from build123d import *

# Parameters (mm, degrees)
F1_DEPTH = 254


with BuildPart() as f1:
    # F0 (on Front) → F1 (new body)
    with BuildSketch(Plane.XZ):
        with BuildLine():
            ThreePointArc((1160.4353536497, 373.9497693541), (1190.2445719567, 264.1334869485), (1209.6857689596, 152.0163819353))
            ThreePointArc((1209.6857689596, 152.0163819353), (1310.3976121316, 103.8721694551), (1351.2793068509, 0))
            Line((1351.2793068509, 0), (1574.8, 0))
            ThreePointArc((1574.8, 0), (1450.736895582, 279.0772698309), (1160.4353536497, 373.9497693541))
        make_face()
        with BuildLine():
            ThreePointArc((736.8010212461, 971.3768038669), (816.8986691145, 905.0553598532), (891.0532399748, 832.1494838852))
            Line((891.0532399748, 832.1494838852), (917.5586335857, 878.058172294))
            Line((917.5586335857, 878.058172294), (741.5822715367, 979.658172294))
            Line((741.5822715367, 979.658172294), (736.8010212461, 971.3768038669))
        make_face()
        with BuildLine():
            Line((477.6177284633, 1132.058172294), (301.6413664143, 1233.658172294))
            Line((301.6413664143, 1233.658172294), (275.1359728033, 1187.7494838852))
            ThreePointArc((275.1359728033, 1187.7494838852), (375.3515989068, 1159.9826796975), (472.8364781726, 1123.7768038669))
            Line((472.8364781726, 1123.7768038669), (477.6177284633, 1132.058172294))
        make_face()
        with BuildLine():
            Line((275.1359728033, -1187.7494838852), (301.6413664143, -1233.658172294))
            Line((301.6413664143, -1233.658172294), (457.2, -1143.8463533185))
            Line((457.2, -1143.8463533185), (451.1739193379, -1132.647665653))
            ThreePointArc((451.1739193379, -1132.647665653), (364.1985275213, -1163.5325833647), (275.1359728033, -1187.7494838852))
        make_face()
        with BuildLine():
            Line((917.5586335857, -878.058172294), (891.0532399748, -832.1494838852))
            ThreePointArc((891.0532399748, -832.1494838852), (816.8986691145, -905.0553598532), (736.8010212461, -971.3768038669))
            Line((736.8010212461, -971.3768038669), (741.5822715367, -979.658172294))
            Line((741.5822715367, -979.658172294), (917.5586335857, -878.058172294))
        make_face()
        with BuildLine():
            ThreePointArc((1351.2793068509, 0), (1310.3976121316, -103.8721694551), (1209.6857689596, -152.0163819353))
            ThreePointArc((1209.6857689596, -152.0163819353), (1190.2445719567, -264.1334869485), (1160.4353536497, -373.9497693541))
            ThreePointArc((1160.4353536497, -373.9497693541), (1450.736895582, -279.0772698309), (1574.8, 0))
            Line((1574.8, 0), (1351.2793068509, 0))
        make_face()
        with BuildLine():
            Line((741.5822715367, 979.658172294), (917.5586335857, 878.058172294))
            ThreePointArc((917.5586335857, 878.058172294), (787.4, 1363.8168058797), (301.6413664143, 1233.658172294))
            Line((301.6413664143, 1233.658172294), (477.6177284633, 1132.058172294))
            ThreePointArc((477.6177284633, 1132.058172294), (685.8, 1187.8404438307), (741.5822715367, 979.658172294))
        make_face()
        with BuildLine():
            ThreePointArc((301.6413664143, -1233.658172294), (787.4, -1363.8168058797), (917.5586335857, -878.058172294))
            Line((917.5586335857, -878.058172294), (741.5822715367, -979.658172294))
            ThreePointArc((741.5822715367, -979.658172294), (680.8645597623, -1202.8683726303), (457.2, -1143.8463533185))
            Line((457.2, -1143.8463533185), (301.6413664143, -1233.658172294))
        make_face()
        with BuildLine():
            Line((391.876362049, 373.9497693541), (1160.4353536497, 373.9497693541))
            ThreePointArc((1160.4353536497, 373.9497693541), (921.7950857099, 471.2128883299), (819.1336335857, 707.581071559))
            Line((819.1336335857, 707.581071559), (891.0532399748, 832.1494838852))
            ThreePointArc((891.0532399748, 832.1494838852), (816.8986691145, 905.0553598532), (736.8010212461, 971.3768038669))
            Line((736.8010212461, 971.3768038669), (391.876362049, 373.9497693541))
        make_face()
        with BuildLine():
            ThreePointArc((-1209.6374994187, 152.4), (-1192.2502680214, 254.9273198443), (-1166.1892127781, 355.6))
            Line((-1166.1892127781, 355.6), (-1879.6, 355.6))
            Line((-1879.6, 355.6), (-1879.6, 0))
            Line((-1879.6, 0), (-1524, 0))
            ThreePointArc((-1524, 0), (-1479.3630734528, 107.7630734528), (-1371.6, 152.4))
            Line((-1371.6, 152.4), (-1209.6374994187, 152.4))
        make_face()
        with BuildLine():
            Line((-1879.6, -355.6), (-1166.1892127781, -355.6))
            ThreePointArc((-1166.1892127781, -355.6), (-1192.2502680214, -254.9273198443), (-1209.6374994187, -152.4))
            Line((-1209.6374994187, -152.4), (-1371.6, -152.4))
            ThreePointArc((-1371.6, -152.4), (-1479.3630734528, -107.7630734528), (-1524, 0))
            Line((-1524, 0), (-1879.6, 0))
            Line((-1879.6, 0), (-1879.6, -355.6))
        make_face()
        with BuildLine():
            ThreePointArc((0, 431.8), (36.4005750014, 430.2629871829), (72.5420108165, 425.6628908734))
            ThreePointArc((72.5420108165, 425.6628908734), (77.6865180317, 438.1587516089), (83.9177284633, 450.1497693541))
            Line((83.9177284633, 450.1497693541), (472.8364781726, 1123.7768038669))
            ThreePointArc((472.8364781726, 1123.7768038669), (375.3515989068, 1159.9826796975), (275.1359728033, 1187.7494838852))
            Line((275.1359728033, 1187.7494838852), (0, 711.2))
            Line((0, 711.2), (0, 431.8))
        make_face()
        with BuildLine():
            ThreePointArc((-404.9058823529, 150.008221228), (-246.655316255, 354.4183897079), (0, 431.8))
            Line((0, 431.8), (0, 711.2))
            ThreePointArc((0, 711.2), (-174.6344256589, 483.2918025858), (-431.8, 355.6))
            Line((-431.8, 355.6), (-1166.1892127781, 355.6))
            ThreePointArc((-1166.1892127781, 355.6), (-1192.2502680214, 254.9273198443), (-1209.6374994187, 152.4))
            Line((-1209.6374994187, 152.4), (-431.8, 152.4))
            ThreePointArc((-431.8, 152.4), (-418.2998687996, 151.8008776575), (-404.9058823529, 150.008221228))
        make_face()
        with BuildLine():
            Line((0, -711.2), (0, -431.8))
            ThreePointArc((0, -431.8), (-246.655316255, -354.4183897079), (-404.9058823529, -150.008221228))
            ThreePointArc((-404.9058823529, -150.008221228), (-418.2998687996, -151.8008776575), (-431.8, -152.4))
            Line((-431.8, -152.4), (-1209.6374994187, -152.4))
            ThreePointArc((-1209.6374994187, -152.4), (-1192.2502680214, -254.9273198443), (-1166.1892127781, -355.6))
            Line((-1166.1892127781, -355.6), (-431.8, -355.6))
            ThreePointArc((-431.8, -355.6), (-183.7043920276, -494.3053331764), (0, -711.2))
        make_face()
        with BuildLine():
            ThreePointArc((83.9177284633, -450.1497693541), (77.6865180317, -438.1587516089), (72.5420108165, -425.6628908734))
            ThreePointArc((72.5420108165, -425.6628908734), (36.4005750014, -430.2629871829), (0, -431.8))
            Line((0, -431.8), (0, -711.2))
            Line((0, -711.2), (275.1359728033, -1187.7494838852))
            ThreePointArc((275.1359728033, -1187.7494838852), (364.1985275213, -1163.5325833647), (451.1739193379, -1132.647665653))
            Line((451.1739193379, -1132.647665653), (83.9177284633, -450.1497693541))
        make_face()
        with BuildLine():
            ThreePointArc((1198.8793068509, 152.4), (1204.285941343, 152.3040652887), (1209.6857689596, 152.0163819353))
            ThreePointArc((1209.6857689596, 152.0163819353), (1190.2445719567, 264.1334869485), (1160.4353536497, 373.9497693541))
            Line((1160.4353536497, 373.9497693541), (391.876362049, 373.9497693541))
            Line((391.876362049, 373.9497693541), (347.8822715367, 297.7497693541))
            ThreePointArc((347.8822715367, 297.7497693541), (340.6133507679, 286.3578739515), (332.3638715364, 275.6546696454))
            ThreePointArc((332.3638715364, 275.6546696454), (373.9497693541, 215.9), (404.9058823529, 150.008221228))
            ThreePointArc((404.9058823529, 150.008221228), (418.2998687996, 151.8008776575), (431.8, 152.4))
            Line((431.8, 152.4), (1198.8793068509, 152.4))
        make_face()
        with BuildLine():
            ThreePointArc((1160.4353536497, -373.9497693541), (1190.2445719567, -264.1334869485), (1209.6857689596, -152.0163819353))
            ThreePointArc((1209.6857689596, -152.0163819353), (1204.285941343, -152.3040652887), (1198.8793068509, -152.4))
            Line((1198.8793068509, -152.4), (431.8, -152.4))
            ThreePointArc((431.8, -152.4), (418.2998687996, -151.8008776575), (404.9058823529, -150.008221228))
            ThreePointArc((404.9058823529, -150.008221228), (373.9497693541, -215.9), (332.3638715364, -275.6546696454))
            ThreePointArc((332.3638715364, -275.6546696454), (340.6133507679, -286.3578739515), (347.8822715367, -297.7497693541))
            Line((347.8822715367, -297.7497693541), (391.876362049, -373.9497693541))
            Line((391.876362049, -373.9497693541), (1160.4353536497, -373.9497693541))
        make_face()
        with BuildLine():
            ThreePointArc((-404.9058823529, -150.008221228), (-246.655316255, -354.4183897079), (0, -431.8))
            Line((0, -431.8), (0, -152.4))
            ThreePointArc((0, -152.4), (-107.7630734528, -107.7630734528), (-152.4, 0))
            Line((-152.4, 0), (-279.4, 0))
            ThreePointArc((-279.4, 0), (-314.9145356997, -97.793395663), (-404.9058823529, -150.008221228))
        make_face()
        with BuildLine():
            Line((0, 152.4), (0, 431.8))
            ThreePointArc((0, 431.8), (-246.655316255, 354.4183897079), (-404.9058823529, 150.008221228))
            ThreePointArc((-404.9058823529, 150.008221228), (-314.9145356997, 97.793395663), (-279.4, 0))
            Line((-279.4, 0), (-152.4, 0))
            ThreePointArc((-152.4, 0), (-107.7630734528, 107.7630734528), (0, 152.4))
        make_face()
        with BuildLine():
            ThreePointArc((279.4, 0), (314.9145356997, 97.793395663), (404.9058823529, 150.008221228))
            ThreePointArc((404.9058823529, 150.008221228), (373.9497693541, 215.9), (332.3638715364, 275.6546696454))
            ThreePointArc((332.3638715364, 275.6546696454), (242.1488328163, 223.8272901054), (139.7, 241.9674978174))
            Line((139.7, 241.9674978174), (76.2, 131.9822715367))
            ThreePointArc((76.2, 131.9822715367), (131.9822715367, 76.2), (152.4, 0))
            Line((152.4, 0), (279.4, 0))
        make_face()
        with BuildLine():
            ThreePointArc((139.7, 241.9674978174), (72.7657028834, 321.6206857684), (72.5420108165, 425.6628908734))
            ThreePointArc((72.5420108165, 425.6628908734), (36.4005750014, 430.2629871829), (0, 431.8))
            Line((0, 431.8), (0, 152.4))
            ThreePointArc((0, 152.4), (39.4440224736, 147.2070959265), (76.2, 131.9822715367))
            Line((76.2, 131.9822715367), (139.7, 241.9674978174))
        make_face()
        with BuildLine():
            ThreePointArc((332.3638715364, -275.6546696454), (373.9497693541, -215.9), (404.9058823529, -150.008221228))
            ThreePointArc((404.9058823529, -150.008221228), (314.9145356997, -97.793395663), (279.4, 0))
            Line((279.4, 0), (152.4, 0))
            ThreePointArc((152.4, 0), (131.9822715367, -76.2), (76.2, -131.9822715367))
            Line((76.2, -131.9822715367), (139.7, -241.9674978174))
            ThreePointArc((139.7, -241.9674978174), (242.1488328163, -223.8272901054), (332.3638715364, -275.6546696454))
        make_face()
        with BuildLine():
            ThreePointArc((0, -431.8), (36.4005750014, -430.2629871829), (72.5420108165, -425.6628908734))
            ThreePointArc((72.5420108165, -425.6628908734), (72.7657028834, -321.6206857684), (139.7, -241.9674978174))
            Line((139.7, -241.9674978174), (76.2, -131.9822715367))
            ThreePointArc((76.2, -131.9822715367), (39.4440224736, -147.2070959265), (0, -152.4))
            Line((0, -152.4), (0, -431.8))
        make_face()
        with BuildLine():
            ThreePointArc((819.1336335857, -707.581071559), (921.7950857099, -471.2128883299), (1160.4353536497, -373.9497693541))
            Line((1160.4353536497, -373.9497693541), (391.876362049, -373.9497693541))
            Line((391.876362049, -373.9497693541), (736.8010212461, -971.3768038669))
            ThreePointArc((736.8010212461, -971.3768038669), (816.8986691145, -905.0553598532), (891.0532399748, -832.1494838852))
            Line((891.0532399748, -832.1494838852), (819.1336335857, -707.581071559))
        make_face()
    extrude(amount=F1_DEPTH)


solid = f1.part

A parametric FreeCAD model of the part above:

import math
import FreeCAD as App
import Part
import Sketcher

V = App.Vector
Q = App.Units.Quantity

doc = App.newDocument("Part")
body = doc.addObject("PartDesign::Body", "Body")

# Sketch on XZ plane
sketch1 = body.newObject("Sketcher::SketchObject", "Sketch")
sketch1.AttachmentSupport = (doc.getObject("XZ_Plane"), [""])
sketch1.MapMode = "FlatFace"
sketch1.addGeometry([
    Part.ArcOfCircle(Part.Circle(V(1198.879307, 0, 0), V(0, 0, 1), 375.920693), math.radians(-95.869679), math.radians(95.869679)),  # 0
    Part.ArcOfCircle(Part.Circle(V(1160.435354, 715.339664, 0), V(0, 0, 1), 341.389894), math.radians(-178.697756), math.radians(-90)),  # 1
    Part.LineSegment(V(819.133634, 707.581072, 0), V(891.05324, 832.149484, 0)),  # 2
    Part.LineSegment(V(891.05324, 832.149484, 0), V(917.558634, 878.058172, 0)),  # 3
    Part.ArcOfCircle(Part.Circle(V(609.6, 1055.858172, 0), V(0, 0, 1), 355.6), math.radians(-30), math.radians(150)),  # 4
    Part.LineSegment(V(301.641366, 1233.658172, 0), V(0, 711.2, 0)),  # 5
    Part.ArcOfCircle(Part.Circle(V(-578.308531, 973.467502, 0), V(0, 0, 1), 635), math.radians(-76.660412), math.radians(-24.394669)),  # 6
    Part.LineSegment(V(-431.8, 355.6, 0), V(-1879.6, 355.6, 0)),  # 7
    Part.LineSegment(V(-1879.6, 355.6, 0), V(-1879.6, -355.6, 0)),  # 8
    Part.LineSegment(V(-1879.6, -355.6, 0), V(-431.8, -355.6, 0)),  # 9
    Part.ArcOfCircle(Part.Circle(V(-690.751769, -1110.00572, 0), V(0, 0, 1), 797.61144), math.radians(30), math.radians(71.05508)),  # 10
    Part.LineSegment(V(0, -711.2, 0), V(301.641366, -1233.658172, 0)),  # 11
    Part.ArcOfCircle(Part.Circle(V(609.6, -1055.858172, 0), V(0, 0, 1), 355.6), math.radians(-150), math.radians(30)),  # 12
    Part.LineSegment(V(917.558634, -878.058172, 0), V(891.05324, -832.149484, 0)),  # 13
    Part.LineSegment(V(891.05324, -832.149484, 0), V(819.133634, -707.581072, 0)),  # 14
    Part.ArcOfCircle(Part.Circle(V(1160.435354, -715.339664, 0), V(0, 0, 1), 341.389894), math.radians(90), math.radians(178.697756)),  # 15
    Part.ArcOfCircle(Part.Circle(V(1198.879307, 0, 0), V(0, 0, 1), 152.4), math.radians(0), math.radians(85.933827)),  # 16
    Part.ArcOfCircle(Part.Circle(V(1198.879307, 0, 0), V(0, 0, 1), 152.4), math.radians(-85.933827), math.radians(0)),  # 17
    Part.ArcOfCircle(Part.Circle(V(1198.879307, 0, 0), V(0, 0, 1), 152.4), math.radians(-90), math.radians(-85.933827)),  # 18
    Part.LineSegment(V(1198.879307, -152.4, 0), V(431.8, -152.4, 0)),  # 19
    Part.ArcOfCircle(Part.Circle(V(431.8, 0, 0), V(0, 0, 1), 152.4), math.radians(-100.164249), math.radians(-90)),  # 20
    Part.ArcOfCircle(Part.Circle(V(431.8, 0, 0), V(0, 0, 1), 152.4), math.radians(100.164249), math.radians(259.835751)),  # 21
    Part.ArcOfCircle(Part.Circle(V(431.8, 0, 0), V(0, 0, 1), 152.4), math.radians(90), math.radians(100.164249)),  # 22
    Part.LineSegment(V(431.8, 152.4, 0), V(1198.879307, 152.4, 0)),  # 23
    Part.ArcOfCircle(Part.Circle(V(1198.879307, 0, 0), V(0, 0, 1), 152.4), math.radians(85.933827), math.radians(90)),  # 24
    Part.ArcOfCircle(Part.Circle(V(215.9, -373.949769, 0), V(0, 0, 1), 152.4), math.radians(30), math.radians(40.164249)),  # 25
    Part.LineSegment(V(347.882272, -297.749769, 0), V(736.801021, -971.376804, 0)),  # 26
    Part.LineSegment(V(736.801021, -971.376804, 0), V(741.582272, -979.658172, 0)),  # 27
    Part.ArcOfCircle(Part.Circle(V(598.768105, -1060.673142, 0), V(0, 0, 1), 164.192909), math.radians(-149.565178), math.radians(29.565178)),  # 28
    Part.LineSegment(V(457.2, -1143.846353, 0), V(451.173919, -1132.647666, 0)),  # 29
    Part.LineSegment(V(451.173919, -1132.647666, 0), V(83.917728, -450.149769, 0)),  # 30
    Part.ArcOfCircle(Part.Circle(V(215.9, -373.949769, 0), V(0, 0, 1), 152.4), math.radians(-160.164249), math.radians(-150)),  # 31
    Part.ArcOfCircle(Part.Circle(V(215.9, -373.949769, 0), V(0, 0, 1), 152.4), math.radians(40.164249), math.radians(199.835751)),  # 32
    Part.ArcOfCircle(Part.Circle(V(0, 0, 0), V(0, 0, 1), 152.4), math.radians(180), math.radians(270)),  # 33
    Part.ArcOfCircle(Part.Circle(V(0, 0, 0), V(0, 0, 1), 152.4), math.radians(90), math.radians(180)),  # 34
    Part.ArcOfCircle(Part.Circle(V(0, 0, 0), V(0, 0, 1), 152.4), math.radians(60), math.radians(90)),  # 35
    Part.ArcOfCircle(Part.Circle(V(0, 0, 0), V(0, 0, 1), 152.4), math.radians(0), math.radians(60)),  # 36
    Part.ArcOfCircle(Part.Circle(V(0, 0, 0), V(0, 0, 1), 152.4), math.radians(-60), math.radians(0)),  # 37
    Part.ArcOfCircle(Part.Circle(V(0, 0, 0), V(0, 0, 1), 152.4), math.radians(-90), math.radians(-60)),  # 38
    Part.LineSegment(V(83.917728, 450.149769, 0), V(472.836478, 1123.776804, 0)),  # 39
    Part.LineSegment(V(472.836478, 1123.776804, 0), V(477.617728, 1132.058172, 0)),  # 40
    Part.ArcOfCircle(Part.Circle(V(609.6, 1055.858172, 0), V(0, 0, 1), 152.4), math.radians(-30), math.radians(150)),  # 41
    Part.LineSegment(V(741.582272, 979.658172, 0), V(736.801021, 971.376804, 0)),  # 42
    Part.LineSegment(V(736.801021, 971.376804, 0), V(347.882272, 297.749769, 0)),  # 43
    Part.ArcOfCircle(Part.Circle(V(215.9, 373.949769, 0), V(0, 0, 1), 152.4), math.radians(-40.164249), math.radians(-30)),  # 44
    Part.ArcOfCircle(Part.Circle(V(215.9, 373.949769, 0), V(0, 0, 1), 152.4), math.radians(150), math.radians(319.835751)),  # 45
    Part.ArcOfCircle(Part.Circle(V(-431.8, 0, 0), V(0, 0, 1), 152.4), math.radians(-90), math.radians(-79.835751)),  # 46
    Part.LineSegment(V(-431.8, -152.4, 0), V(-1371.6, -152.4, 0)),  # 47
    Part.ArcOfCircle(Part.Circle(V(-1371.6, 0, 0), V(0, 0, 1), 152.4), math.radians(180), math.radians(270)),  # 48
    Part.ArcOfCircle(Part.Circle(V(-1371.6, 0, 0), V(0, 0, 1), 152.4), math.radians(90), math.radians(180)),  # 49
    Part.LineSegment(V(-1371.6, 152.4, 0), V(-431.8, 152.4, 0)),  # 50
    Part.ArcOfCircle(Part.Circle(V(-431.8, 0, 0), V(0, 0, 1), 152.4), math.radians(79.835751), math.radians(90)),  # 51
    Part.ArcOfCircle(Part.Circle(V(-431.8, 0, 0), V(0, 0, 1), 152.4), math.radians(-79.835751), math.radians(79.835751)),  # 52
], False)
sketch1.addConstraint([
    Sketcher.Constraint("Coincident", 0, 2, 1, 2),
    Sketcher.Constraint("Coincident", 1, 1, 2, 1),
    Sketcher.Constraint("Coincident", 2, 2, 3, 1),
    Sketcher.Constraint("Coincident", 3, 2, 4, 1),
    Sketcher.Constraint("Coincident", 4, 2, 5, 1),
    Sketcher.Constraint("Coincident", 5, 2, 6, 2),
    Sketcher.Constraint("Coincident", 6, 1, 7, 1),
    Sketcher.Constraint("Coincident", 7, 2, 8, 1),
    Sketcher.Constraint("Coincident", 8, 2, 9, 1),
    Sketcher.Constraint("Coincident", 9, 2, 10, 2),
    Sketcher.Constraint("Coincident", 10, 1, 11, 1),
    Sketcher.Constraint("Coincident", 11, 2, 12, 1),
    Sketcher.Constraint("Coincident", 12, 2, 13, 1),
    Sketcher.Constraint("Coincident", 13, 2, 14, 1),
    Sketcher.Constraint("Coincident", 14, 2, 15, 2),
    Sketcher.Constraint("Coincident", 15, 1, 0, 1),
    Sketcher.Constraint("Coincident", 16, 1, 17, 2),
    Sketcher.Constraint("Coincident", 17, 1, 18, 2),
    Sketcher.Constraint("Coincident", 18, 1, 19, 1),
    Sketcher.Constraint("Coincident", 19, 2, 20, 2),
    Sketcher.Constraint("Coincident", 20, 1, 21, 2),
    Sketcher.Constraint("Coincident", 21, 1, 22, 2),
    Sketcher.Constraint("Coincident", 22, 1, 23, 1),
    Sketcher.Constraint("Coincident", 23, 2, 24, 2),
    Sketcher.Constraint("Coincident", 24, 1, 16, 2),
    Sketcher.Constraint("Coincident", 25, 1, 26, 1),
    Sketcher.Constraint("Coincident", 26, 2, 27, 1),
    Sketcher.Constraint("Coincident", 27, 2, 28, 2),
    Sketcher.Constraint("Coincident", 28, 1, 29, 1),
    Sketcher.Constraint("Coincident", 29, 2, 30, 1),
    Sketcher.Constraint("Coincident", 30, 2, 31, 2),
    Sketcher.Constraint("Coincident", 31, 1, 32, 2),
    Sketcher.Constraint("Coincident", 32, 1, 25, 2),
    Sketcher.Constraint("Coincident", 33, 1, 34, 2),
    Sketcher.Constraint("Coincident", 34, 1, 35, 2),
    Sketcher.Constraint("Coincident", 35, 1, 36, 2),
    Sketcher.Constraint("Coincident", 36, 1, 37, 2),
    Sketcher.Constraint("Coincident", 37, 1, 38, 2),
    Sketcher.Constraint("Coincident", 38, 1, 33, 2),
    Sketcher.Constraint("Coincident", 39, 2, 40, 1),
    Sketcher.Constraint("Coincident", 40, 2, 41, 2),
    Sketcher.Constraint("Coincident", 41, 1, 42, 1),
    Sketcher.Constraint("Coincident", 42, 2, 43, 1),
    Sketcher.Constraint("Coincident", 43, 2, 44, 2),
    Sketcher.Constraint("Coincident", 44, 1, 45, 2),
    Sketcher.Constraint("Coincident", 45, 1, 39, 1),
    Sketcher.Constraint("Coincident", 46, 1, 47, 1),
    Sketcher.Constraint("Coincident", 47, 2, 48, 2),
    Sketcher.Constraint("Coincident", 48, 1, 49, 2),
    Sketcher.Constraint("Coincident", 49, 1, 50, 1),
    Sketcher.Constraint("Coincident", 50, 2, 51, 2),
    Sketcher.Constraint("Coincident", 51, 1, 52, 2),
    Sketcher.Constraint("Coincident", 52, 1, 46, 2),
    Sketcher.Constraint("Horizontal", 7),
    Sketcher.Constraint("Vertical", 8),
    Sketcher.Constraint("Horizontal", 9),
    Sketcher.Constraint("Horizontal", 19),
    Sketcher.Constraint("Horizontal", 23),
    Sketcher.Constraint("Horizontal", 47),
    Sketcher.Constraint("Horizontal", 50),
    Sketcher.Constraint("Coincident", 33, 3, -1, 1),
    Sketcher.Constraint("Coincident", 34, 3, -1, 1),
    Sketcher.Constraint("Coincident", 35, 3, -1, 1),
    Sketcher.Constraint("Coincident", 36, 3, -1, 1),
    Sketcher.Constraint("Coincident", 37, 3, -1, 1),
    Sketcher.Constraint("Coincident", 16, 3, 0, 3),
    Sketcher.Constraint("Coincident", 17, 3, 0, 3),
    Sketcher.Constraint("Coincident", 18, 3, 0, 3),
    Sketcher.Constraint("Coincident", 21, 3, 20, 3),
    Sketcher.Constraint("Coincident", 22, 3, 20, 3),
    Sketcher.Constraint("Coincident", 24, 3, 0, 3),
    Sketcher.Constraint("Coincident", 31, 3, 25, 3),
    Sketcher.Constraint("Coincident", 32, 3, 25, 3),
    Sketcher.Constraint("Coincident", 41, 3, 4, 3),
    Sketcher.Constraint("Coincident", 45, 3, 44, 3),
    Sketcher.Constraint("Coincident", 49, 3, 48, 3),
    Sketcher.Constraint("Coincident", 51, 3, 46, 3),
    Sketcher.Constraint("Coincident", 52, 3, 46, 3),
    Sketcher.Constraint("PointOnObject", 0, 3, -1),
    Sketcher.Constraint("PointOnObject", 46, 3, -1),
    Sketcher.Constraint("PointOnObject", 5, 2, -2),
    Sketcher.Constraint("PointOnObject", 16, 1, -1),
    Sketcher.Constraint("PointOnObject", 33, 1, -1),
    Sketcher.Constraint("PointOnObject", 34, 1, -2),
    Sketcher.Constraint("PointOnObject", 36, 1, -1),
    Sketcher.Constraint("PointOnObject", 38, 1, -2),
    Sketcher.Constraint("PointOnObject", 48, 1, -1),
    Sketcher.Constraint("Radius", 4, Q("14 in")),
    Sketcher.Constraint("Radius", 6, Q("25 in")),
    Sketcher.Constraint("Radius", 12, Q("14 in")),
    Sketcher.Constraint("Radius", 16, Q("6 in")),
    Sketcher.Constraint("Radius", 25, Q("6 in")),
    Sketcher.Constraint("Radius", 33, Q("6 in")),
    Sketcher.Constraint("Radius", 38, Q("6 in")),
    Sketcher.Constraint("Radius", 41, Q("6 in")),
    Sketcher.Constraint("Radius", 44, Q("6 in")),
    Sketcher.Constraint("Radius", 46, Q("6 in")),
    Sketcher.Constraint("DistanceX", 7, 2, 7, 1, Q("57 in")),
    Sketcher.Constraint("DistanceX", 9, 1, 9, 2, Q("57 in")),
    Sketcher.Constraint("DistanceX", 47, 2, 47, 1, Q("37 in")),
    Sketcher.Constraint("DistanceX", 50, 1, 50, 2, Q("37 in")),
    Sketcher.Constraint("DistanceY", 8, 2, 8, 1, Q("28 in")),
    Sketcher.Constraint("DistanceX", -1, 1, 4, 3, Q("24 in")),
    Sketcher.Constraint("DistanceX", -1, 1, 12, 3, Q("24 in")),
    Sketcher.Constraint("DistanceX", -1, 1, 20, 3, Q("17 in")),
    Sketcher.Constraint("DistanceX", 46, 3, -1, 1, Q("17 in")),
    Sketcher.Constraint("DistanceX", 48, 3, -1, 1, Q("54 in")),
    Sketcher.Constraint("DistanceY", -1, 1, 5, 2, Q("28 in")),
    Sketcher.Constraint("DistanceY", -1, 1, 6, 1, Q("14 in")),
    Sketcher.Constraint("DistanceX", 7, 2, -1, 1, Q("74 in")),
    Sketcher.Constraint("DistanceX", -1, 1, 19, 2, Q("17 in")),
    Sketcher.Constraint("DistanceX", -1, 1, 22, 1, Q("17 in")),
    Sketcher.Constraint("DistanceX", -1, 1, 28, 1, Q("18 in")),
    Sketcher.Constraint("DistanceX", -1, 1, 35, 1, Q("3 in")),
    Sketcher.Constraint("DistanceX", -1, 1, 37, 1, Q("3 in")),
    Sketcher.Constraint("DistanceX", 46, 1, -1, 1, Q("17 in")),
    Sketcher.Constraint("DistanceX", 49, 1, -1, 1, Q("54 in")),
    Sketcher.Constraint("DistanceX", -1, 1, 25, 3, Q("8.5 in")),
    Sketcher.Constraint("DistanceX", -1, 1, 44, 3, Q("8.5 in")),
    Sketcher.Constraint("Radius", 10, 797.61144),
    Sketcher.Constraint("Radius", 28, 164.192909),
    Sketcher.Constraint("Radius", 0, 375.920693),
    Sketcher.Constraint("Radius", 1, 341.389894),
    Sketcher.Constraint("Radius", 15, 341.389894),
    Sketcher.Constraint("Distance", 26, 777.837499),
    Sketcher.Constraint("Distance", 27, 9.562501),
    Sketcher.Constraint("Distance", 30, 775.035798),
    Sketcher.Constraint("Distance", 39, 777.837499),
    Sketcher.Constraint("Distance", 40, 9.562501),
    Sketcher.Constraint("Distance", 42, 9.562501),
    Sketcher.Constraint("Distance", 43, 777.837499),
    Sketcher.Constraint("DistanceX", 19, 2, 19, 1, 767.079307),
    Sketcher.Constraint("DistanceX", 23, 1, 23, 2, 767.079307),
    Sketcher.Constraint("DistanceX", 10, 3, -1, 1, 690.751769),
    Sketcher.Constraint("DistanceY", 25, 3, -1, 1, 373.949769),
    Sketcher.Constraint("DistanceY", -1, 1, 44, 3, 373.949769),
    Sketcher.Constraint("DistanceY", -1, 1, 0, 2, 373.949769),
    Sketcher.Constraint("DistanceY", -1, 1, 1, 1, 707.581072),
    Sketcher.Constraint("DistanceX", -1, 1, 2, 2, 891.05324),
    Sketcher.Constraint("DistanceX", -1, 1, 13, 2, 891.05324),
    Sketcher.Constraint("DistanceY", 14, 2, -1, 1, 707.581072),
    Sketcher.Constraint("DistanceY", 15, 1, -1, 1, 373.949769),
    Sketcher.Constraint("DistanceX", -1, 1, 17, 1, 1209.685769),
    Sketcher.Constraint("DistanceY", 17, 1, -1, 1, 152.016382),
    Sketcher.Constraint("DistanceY", 20, 1, -1, 1, 150.008221),
    Sketcher.Constraint("DistanceY", -1, 1, 21, 1, 150.008221),
    Sketcher.Constraint("DistanceX", -1, 1, 24, 1, 1209.685769),
    Sketcher.Constraint("DistanceX", -1, 1, 25, 1, 347.882272),
    Sketcher.Constraint("DistanceX", -1, 1, 26, 2, 736.801021),
    Sketcher.Constraint("DistanceX", -1, 1, 27, 2, 741.582272),
    Sketcher.Constraint("DistanceX", -1, 1, 29, 2, 451.173919),
    Sketcher.Constraint("DistanceX", -1, 1, 30, 2, 83.917728),
    Sketcher.Constraint("DistanceX", -1, 1, 31, 1, 72.542011),
    Sketcher.Constraint("DistanceX", -1, 1, 32, 1, 332.363872),
    Sketcher.Constraint("DistanceX", -1, 1, 39, 2, 472.836478),
    Sketcher.Constraint("DistanceX", -1, 1, 40, 2, 477.617728),
    Sketcher.Constraint("DistanceX", -1, 1, 41, 1, 741.582272),
    Sketcher.Constraint("DistanceX", -1, 1, 42, 2, 736.801021),
    Sketcher.Constraint("DistanceX", -1, 1, 43, 2, 347.882272),
    Sketcher.Constraint("DistanceX", -1, 1, 44, 1, 332.363872),
    Sketcher.Constraint("DistanceY", -1, 1, 51, 1, 150.008221),
    Sketcher.Constraint("DistanceY", 52, 1, -1, 1, 150.008221),
    Sketcher.Constraint("Distance", 2, 143.839213),
    Sketcher.Constraint("Distance", 3, 53.010787),
    Sketcher.Constraint("Distance", 5, 603.282733),
    Sketcher.Constraint("Distance", 11, 603.282733),
    Sketcher.Constraint("Distance", 13, 53.010787),
    Sketcher.Constraint("Distance", 14, 143.839213),
    Sketcher.Constraint("Distance", 29, 12.717085),
    Sketcher.Constraint("DistanceX", -1, 1, 1, 3, 1160.435354),
    Sketcher.Constraint("DistanceY", 12, 3, -1, 1, 1055.858172),
    Sketcher.Constraint("DistanceX", -1, 1, 15, 3, 1160.435354),
    Sketcher.Constraint("DistanceX", -1, 1, 11, 2, 301.641366),
])
pad1 = body.newObject("PartDesign::Pad", "Pad")
pad1.Profile = sketch1
pad1.Length = Q("10 in")

doc.recompute()
